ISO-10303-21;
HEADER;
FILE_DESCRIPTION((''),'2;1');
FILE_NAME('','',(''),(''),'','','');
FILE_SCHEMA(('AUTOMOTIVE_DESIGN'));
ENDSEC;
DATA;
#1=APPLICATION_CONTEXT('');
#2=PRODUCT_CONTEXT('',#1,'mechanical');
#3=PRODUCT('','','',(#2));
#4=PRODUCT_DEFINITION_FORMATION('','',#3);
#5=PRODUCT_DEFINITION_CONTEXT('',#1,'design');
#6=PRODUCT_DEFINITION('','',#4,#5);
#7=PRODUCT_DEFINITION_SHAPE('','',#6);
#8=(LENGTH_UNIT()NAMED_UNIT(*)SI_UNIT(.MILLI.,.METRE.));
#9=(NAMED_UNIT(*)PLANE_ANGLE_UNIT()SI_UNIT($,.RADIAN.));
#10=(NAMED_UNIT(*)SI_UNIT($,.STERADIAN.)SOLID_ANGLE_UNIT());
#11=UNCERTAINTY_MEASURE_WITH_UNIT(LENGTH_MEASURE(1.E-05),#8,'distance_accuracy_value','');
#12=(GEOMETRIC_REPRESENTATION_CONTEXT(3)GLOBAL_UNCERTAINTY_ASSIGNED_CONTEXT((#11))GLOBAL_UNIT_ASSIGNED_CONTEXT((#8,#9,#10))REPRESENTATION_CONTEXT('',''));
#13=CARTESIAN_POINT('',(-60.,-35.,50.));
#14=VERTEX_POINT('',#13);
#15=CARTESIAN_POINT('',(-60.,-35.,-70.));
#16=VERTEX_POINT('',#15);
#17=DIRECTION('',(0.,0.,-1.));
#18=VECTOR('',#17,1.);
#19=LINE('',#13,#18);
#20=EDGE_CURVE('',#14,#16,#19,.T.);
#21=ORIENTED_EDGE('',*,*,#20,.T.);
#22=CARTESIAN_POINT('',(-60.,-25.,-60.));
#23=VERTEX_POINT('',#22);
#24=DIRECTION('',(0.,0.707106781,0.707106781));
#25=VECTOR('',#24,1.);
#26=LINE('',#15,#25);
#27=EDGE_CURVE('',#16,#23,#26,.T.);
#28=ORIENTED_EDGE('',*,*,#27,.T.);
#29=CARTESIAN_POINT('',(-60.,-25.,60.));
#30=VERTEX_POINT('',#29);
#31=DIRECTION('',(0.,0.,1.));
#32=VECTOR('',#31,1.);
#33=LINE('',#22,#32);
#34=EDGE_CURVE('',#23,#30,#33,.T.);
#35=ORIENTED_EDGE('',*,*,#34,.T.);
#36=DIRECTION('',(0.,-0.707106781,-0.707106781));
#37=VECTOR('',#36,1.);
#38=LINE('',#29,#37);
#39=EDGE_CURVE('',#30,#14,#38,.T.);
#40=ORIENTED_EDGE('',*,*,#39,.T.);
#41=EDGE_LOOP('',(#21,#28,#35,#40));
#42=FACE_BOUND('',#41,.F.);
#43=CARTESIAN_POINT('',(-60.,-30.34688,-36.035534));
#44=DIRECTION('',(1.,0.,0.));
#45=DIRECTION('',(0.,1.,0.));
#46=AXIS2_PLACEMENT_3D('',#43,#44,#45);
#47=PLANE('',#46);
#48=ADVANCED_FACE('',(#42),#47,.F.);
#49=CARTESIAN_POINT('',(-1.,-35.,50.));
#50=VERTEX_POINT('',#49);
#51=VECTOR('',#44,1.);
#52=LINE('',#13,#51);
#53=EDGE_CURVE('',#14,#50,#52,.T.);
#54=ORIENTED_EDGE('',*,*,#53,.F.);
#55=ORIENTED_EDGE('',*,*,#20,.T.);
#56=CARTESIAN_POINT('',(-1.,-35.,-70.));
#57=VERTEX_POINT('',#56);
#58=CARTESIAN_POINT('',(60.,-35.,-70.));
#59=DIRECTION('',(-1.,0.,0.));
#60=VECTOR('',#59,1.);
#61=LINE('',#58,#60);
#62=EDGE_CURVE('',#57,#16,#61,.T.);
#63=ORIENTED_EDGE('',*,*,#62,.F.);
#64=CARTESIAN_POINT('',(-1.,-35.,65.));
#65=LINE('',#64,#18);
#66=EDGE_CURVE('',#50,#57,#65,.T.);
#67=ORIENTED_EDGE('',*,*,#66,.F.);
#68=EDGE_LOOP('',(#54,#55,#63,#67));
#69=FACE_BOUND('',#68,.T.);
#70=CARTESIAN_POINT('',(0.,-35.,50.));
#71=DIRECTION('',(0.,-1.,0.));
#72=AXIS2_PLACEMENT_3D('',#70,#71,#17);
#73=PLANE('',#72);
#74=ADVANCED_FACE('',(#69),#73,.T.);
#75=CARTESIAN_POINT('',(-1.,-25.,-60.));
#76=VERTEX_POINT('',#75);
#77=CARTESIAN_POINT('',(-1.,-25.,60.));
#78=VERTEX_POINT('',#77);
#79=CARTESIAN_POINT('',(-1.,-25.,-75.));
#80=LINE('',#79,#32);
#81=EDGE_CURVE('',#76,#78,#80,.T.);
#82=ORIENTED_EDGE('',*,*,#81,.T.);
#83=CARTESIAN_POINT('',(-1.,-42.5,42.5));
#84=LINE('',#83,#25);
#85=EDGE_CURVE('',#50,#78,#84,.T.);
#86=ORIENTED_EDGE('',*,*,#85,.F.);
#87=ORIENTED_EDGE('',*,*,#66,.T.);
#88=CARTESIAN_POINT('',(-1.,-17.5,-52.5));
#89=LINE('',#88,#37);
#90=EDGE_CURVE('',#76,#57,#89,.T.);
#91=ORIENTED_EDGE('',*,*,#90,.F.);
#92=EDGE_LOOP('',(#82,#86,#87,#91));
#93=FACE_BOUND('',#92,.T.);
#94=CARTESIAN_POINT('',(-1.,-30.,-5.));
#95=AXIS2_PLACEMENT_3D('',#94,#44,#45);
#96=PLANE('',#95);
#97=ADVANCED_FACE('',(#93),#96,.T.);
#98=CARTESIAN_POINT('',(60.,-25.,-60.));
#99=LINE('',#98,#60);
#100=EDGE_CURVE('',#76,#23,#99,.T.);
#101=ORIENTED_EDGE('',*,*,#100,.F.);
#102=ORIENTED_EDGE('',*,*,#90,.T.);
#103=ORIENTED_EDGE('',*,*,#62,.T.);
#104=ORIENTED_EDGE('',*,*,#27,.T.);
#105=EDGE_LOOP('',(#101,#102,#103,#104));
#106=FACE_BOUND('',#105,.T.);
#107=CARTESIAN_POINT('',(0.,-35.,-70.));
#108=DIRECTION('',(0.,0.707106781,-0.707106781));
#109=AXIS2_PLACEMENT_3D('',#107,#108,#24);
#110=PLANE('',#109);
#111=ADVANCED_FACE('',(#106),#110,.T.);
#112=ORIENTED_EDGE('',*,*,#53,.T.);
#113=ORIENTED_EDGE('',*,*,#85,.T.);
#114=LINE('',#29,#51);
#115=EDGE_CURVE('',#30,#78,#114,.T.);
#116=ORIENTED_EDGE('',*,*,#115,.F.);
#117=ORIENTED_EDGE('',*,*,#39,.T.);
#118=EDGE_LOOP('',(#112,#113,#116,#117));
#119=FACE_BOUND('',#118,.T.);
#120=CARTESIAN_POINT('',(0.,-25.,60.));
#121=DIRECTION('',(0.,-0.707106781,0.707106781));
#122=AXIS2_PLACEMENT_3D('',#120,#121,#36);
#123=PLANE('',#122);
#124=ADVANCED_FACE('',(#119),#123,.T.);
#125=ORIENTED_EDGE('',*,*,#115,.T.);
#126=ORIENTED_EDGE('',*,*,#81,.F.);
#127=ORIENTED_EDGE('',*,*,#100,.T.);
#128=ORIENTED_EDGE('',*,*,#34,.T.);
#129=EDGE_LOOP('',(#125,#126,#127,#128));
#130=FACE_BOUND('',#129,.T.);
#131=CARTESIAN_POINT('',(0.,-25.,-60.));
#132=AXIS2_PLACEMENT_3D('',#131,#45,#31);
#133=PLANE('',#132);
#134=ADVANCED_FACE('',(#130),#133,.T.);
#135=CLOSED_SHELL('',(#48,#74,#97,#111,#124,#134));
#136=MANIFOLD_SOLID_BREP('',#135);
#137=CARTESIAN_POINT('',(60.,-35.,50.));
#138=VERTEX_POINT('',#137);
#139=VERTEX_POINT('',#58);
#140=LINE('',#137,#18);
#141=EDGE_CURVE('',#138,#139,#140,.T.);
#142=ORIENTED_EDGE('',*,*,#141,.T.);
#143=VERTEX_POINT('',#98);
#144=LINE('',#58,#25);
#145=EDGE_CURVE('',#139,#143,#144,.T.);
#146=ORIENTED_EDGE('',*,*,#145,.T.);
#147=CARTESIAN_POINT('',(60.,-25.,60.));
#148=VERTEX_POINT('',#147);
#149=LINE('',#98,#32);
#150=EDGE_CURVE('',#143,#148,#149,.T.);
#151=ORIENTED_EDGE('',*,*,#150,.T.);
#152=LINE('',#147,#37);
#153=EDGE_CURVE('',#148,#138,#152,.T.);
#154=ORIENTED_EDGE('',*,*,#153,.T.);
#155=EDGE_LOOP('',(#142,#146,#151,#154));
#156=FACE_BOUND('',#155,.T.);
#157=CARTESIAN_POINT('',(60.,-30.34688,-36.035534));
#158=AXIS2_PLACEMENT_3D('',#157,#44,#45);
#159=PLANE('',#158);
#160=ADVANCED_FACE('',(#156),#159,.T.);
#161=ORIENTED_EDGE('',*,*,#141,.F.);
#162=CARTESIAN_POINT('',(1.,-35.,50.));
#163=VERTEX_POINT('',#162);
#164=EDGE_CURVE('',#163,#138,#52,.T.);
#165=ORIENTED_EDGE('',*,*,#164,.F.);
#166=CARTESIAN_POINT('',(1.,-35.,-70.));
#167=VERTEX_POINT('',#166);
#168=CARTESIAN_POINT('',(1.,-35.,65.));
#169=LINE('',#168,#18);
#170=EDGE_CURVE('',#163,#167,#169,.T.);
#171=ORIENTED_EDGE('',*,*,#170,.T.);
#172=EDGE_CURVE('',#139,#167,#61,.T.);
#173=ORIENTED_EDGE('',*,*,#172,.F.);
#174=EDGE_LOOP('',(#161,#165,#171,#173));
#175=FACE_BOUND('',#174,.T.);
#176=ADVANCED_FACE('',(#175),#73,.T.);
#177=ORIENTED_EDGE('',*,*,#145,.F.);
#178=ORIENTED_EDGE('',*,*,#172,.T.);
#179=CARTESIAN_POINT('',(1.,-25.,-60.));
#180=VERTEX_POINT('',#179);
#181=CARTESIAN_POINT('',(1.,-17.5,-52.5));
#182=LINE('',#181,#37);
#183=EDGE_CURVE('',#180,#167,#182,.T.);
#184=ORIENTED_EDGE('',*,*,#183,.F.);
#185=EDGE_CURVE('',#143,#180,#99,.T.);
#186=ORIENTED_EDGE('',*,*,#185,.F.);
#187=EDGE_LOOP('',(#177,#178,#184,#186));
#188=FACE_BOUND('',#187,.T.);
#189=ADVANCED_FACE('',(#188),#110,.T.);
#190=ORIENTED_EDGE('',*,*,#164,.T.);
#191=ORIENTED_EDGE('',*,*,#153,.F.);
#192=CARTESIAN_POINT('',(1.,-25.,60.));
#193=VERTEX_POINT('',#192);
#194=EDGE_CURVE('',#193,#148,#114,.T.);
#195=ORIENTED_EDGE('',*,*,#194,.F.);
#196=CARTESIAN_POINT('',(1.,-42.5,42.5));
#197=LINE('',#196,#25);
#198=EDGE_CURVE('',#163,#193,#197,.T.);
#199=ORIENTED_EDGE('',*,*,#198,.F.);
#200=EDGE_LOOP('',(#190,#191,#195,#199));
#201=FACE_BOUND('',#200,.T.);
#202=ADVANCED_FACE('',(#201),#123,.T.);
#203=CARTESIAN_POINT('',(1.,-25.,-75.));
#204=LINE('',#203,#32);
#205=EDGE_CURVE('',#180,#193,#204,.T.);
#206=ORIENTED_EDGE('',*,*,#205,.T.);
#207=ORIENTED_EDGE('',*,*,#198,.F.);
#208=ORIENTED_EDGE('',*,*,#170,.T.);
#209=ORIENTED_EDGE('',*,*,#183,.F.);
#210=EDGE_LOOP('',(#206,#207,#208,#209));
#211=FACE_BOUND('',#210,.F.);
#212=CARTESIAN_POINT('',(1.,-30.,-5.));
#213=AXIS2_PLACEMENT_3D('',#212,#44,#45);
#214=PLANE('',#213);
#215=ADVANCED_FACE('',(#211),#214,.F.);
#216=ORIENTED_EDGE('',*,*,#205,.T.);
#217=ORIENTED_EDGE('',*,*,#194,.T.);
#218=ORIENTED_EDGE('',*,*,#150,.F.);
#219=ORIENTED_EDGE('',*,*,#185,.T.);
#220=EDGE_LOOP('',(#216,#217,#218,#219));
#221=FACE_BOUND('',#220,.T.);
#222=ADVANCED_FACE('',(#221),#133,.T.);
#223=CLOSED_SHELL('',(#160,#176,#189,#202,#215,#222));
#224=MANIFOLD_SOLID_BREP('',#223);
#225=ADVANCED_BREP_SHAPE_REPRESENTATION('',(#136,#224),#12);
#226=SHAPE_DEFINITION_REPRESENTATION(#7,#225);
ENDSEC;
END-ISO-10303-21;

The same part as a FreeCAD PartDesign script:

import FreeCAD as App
import Part
import Sketcher
from FreeCAD import Vector
Q = App.Units.Quantity


def add_polygon(sketch, points):
    """Adds a closed chain of lines whose ends are joined by coincident constraints."""
    first, n = sketch.GeometryCount, len(points)
    for a, b in zip(points, points[1:] + points[:1]):
        sketch.addGeometry(Part.LineSegment(App.Vector(*a, 0), App.Vector(*b, 0)), False)
    for i in range(n):
        sketch.addConstraint(Sketcher.Constraint("Coincident", first + i, 2, first + (i + 1) % n, 1))

doc = App.newDocument("Part")
body = doc.addObject("PartDesign::Body", "Body")
body.AllowCompound = True

sketch1 = body.newObject("Sketcher::SketchObject", "Sketch")
sketch1.AttachmentSupport = (doc.getObject("YZ_Plane"), [""])
sketch1.MapMode = "FlatFace"
add_polygon(sketch1, [(-25, -60), (-25, 60), (-35, 50), (-35, -70)])
sketch1.addConstraint(Sketcher.Constraint("Vertical", 0))
sketch1.addConstraint(Sketcher.Constraint("Vertical", 2))
sketch1.addConstraint(Sketcher.Constraint("Parallel", 1, 3))
sketch1.addConstraint(Sketcher.Constraint("DistanceY", 0, 1, 0, 2, Q("120 mm")))
sketch1.addConstraint(Sketcher.Constraint("Angle", 1, Q("-135 deg")))
sketch1.addConstraint(Sketcher.Constraint("DistanceX", 0, 2, -1, 1, Q("25 mm")))
sketch1.addConstraint(Sketcher.Constraint("DistanceY", -1, 1, 0, 2, Q("60 mm")))
sketch1.addConstraint(Sketcher.Constraint("DistanceX", 1, 2, -1, 1, Q("35 mm")))
pad1 = body.newObject("PartDesign::Pad", "Pad")
pad1.Profile = sketch1
pad1.Length = 120
pad1.Midplane = True

sketch2 = body.newObject("Sketcher::SketchObject", "Sketch001")
sketch2.AttachmentSupport = (doc.getObject("YZ_Plane"), [""])
sketch2.MapMode = "FlatFace"
add_polygon(sketch2, [(-35, 65), (-35, -75), (-25, -75), (-25, 65)])
sketch2.addConstraint(Sketcher.Constraint("Vertical", 0))
sketch2.addConstraint(Sketcher.Constraint("Horizontal", 1))
sketch2.addConstraint(Sketcher.Constraint("Vertical", 2))
sketch2.addConstraint(Sketcher.Constraint("Horizontal", 3))
sketch2.addConstraint(Sketcher.Constraint("DistanceX", 1, 1, 1, 2, Q("10 mm")))
sketch2.addConstraint(Sketcher.Constraint("DistanceY", 0, 2, 0, 1, Q("140 mm")))
sketch2.addConstraint(Sketcher.Constraint("DistanceX", 0, 2, -1, 1, Q("35 mm")))
sketch2.addConstraint(Sketcher.Constraint("DistanceY", 0, 2, -1, 1, Q("75 mm")))
pocket1 = body.newObject("PartDesign::Pocket", "Pocket")
pocket1.Profile = sketch2
pocket1.Length = 2
pocket1.Midplane = True

doc.recompute()
